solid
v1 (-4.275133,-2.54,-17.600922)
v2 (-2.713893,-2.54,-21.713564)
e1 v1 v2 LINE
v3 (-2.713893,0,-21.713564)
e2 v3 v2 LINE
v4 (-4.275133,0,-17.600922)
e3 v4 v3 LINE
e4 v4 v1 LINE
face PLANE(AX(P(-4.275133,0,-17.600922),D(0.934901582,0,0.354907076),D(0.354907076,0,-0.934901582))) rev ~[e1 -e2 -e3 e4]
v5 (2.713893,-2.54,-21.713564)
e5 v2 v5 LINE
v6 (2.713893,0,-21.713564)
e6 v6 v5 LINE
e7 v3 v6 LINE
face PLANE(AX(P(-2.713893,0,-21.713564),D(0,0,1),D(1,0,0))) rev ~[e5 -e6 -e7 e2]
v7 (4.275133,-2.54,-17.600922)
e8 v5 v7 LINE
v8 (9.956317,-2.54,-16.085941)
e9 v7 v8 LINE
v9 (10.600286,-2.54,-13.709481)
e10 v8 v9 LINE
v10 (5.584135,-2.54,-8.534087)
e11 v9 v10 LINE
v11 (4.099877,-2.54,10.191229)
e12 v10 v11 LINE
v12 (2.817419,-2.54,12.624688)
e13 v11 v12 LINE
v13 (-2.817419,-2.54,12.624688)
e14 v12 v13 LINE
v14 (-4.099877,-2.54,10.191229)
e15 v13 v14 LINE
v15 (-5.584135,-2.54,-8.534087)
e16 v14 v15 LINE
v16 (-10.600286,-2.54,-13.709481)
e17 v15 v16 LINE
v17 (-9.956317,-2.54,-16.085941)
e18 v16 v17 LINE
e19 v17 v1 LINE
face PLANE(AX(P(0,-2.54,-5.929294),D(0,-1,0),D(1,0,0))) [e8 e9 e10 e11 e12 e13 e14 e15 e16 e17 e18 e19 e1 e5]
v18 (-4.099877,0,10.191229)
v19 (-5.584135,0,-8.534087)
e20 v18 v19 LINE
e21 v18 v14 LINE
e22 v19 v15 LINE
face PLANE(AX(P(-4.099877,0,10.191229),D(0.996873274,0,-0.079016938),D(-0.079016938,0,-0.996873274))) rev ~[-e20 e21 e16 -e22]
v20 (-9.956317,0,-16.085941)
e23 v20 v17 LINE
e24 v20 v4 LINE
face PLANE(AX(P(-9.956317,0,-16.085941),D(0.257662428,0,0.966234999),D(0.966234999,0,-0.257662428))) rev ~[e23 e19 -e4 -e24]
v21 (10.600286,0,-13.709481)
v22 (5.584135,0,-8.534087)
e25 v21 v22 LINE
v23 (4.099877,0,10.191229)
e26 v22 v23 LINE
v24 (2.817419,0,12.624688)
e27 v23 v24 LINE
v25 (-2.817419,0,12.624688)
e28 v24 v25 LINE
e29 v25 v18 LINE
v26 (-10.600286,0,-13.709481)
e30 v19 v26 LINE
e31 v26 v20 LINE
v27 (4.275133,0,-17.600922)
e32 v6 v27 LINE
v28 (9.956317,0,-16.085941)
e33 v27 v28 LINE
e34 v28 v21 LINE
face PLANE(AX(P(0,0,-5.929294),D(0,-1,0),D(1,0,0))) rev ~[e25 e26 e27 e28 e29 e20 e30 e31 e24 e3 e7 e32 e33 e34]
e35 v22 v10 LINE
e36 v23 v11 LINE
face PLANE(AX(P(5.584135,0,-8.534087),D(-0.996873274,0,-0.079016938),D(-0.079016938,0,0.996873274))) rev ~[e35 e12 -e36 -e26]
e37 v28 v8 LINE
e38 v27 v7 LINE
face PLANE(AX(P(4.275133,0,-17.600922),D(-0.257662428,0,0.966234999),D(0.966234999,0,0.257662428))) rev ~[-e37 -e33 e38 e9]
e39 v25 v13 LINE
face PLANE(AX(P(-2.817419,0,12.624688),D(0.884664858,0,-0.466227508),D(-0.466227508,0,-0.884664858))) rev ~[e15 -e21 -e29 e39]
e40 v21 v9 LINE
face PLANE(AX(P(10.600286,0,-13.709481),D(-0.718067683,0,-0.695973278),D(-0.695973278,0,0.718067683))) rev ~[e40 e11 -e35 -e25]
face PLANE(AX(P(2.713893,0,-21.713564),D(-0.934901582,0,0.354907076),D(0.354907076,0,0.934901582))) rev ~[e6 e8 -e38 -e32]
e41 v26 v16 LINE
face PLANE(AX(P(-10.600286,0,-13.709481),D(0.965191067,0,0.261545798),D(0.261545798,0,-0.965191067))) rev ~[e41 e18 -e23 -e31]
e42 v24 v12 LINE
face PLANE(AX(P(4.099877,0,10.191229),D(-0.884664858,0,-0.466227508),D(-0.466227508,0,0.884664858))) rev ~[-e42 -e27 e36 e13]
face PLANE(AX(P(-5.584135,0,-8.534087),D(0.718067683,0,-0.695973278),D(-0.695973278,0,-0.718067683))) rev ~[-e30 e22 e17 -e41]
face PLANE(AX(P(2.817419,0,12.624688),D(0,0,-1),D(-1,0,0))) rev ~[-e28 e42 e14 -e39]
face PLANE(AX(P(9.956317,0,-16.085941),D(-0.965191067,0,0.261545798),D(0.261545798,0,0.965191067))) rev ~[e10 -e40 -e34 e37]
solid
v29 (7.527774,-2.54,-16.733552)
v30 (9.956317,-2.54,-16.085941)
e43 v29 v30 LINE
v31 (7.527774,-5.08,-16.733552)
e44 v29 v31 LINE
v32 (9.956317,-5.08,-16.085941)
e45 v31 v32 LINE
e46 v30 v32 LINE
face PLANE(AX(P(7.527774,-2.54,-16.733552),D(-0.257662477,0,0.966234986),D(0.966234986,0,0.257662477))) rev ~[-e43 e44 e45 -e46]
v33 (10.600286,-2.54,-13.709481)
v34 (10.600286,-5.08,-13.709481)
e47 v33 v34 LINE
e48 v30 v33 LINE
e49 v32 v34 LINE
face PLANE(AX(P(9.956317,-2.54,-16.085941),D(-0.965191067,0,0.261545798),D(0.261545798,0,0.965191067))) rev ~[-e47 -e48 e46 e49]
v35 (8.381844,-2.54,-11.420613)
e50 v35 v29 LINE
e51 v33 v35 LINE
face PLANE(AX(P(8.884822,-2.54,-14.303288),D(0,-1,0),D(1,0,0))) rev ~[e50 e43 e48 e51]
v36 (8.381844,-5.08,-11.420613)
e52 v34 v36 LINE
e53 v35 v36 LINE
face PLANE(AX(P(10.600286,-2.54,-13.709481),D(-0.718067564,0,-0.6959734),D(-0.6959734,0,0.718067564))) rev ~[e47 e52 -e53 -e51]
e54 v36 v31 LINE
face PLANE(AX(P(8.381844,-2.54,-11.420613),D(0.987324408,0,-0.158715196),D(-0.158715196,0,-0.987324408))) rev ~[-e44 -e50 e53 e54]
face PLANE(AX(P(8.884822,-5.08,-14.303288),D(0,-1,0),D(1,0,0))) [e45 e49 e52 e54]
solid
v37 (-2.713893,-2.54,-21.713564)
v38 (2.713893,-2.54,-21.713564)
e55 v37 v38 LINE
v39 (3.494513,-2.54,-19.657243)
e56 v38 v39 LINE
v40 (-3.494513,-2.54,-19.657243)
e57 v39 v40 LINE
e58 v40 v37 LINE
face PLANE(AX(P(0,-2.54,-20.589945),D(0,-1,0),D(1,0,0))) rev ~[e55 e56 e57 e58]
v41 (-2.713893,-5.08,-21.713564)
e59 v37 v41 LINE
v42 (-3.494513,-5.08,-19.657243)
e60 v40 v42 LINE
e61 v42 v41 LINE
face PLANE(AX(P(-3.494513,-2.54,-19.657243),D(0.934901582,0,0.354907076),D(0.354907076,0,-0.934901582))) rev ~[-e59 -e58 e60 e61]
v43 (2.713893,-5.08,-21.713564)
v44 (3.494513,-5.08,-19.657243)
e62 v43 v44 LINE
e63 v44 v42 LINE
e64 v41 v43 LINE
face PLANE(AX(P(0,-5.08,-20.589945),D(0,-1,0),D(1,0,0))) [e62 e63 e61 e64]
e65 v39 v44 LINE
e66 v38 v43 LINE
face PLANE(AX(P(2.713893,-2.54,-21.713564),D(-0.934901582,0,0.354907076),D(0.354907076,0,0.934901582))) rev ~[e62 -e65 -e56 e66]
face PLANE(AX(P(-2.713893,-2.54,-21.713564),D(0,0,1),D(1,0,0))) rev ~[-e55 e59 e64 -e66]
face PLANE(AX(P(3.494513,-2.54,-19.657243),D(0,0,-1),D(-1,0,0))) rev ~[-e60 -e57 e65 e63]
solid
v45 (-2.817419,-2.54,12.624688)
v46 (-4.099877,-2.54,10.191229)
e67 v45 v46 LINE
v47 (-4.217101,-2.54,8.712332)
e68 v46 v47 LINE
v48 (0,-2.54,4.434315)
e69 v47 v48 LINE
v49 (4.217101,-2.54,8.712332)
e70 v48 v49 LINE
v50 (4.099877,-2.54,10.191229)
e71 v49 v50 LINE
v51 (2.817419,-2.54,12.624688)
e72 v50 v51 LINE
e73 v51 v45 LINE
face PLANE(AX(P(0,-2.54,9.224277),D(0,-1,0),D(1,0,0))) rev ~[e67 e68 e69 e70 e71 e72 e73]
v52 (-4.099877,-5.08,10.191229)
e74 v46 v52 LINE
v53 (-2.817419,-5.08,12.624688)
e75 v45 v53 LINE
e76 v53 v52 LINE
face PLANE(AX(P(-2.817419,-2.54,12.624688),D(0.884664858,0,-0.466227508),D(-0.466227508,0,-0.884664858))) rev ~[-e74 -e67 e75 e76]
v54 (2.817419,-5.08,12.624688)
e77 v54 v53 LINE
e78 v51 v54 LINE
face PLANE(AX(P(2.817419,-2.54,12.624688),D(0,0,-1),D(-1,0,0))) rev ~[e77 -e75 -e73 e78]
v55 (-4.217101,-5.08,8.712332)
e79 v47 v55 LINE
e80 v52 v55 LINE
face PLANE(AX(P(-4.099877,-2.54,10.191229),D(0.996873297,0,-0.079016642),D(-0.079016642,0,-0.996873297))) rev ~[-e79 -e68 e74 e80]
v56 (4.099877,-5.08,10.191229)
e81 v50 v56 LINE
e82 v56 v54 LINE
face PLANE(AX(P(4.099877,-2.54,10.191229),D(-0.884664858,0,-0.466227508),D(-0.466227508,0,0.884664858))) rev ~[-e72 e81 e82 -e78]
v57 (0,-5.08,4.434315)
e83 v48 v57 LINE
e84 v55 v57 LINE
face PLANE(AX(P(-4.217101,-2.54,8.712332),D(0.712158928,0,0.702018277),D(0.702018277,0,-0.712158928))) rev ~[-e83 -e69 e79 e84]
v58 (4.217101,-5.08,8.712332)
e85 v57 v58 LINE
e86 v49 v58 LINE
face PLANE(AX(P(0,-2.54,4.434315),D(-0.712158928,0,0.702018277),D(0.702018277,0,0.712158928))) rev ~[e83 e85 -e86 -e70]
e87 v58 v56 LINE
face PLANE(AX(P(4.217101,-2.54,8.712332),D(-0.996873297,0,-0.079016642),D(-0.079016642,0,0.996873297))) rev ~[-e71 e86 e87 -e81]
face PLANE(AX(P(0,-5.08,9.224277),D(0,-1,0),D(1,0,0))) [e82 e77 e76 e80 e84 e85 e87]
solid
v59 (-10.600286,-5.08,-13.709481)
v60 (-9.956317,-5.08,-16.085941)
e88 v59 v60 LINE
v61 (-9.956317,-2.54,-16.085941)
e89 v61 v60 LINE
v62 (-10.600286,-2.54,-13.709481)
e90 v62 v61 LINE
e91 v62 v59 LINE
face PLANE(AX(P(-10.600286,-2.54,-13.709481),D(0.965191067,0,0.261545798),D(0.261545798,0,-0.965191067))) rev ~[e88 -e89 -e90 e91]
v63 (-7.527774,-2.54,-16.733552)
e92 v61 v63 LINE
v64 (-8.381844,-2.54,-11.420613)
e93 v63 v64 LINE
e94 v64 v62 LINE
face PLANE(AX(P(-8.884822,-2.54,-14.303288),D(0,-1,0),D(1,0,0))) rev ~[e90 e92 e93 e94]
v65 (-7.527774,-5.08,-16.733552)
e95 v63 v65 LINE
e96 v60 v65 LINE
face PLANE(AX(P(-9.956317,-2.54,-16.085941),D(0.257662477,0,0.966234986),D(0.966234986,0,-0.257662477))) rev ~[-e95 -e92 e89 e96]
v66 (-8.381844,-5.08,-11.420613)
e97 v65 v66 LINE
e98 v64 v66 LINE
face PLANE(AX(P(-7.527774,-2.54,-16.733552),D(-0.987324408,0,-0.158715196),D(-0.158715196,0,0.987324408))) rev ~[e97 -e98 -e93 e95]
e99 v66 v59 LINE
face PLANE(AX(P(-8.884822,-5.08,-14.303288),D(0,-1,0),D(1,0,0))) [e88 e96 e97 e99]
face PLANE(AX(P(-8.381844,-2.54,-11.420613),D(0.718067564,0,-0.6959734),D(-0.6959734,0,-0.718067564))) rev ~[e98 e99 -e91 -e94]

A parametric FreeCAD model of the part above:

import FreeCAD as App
import Part
import Sketcher

V = App.Vector
Q = App.Units.Quantity


def add_polygon(sketch, points):
    """Adds a closed chain of lines whose ends are joined by coincident constraints."""
    first, n = sketch.GeometryCount, len(points)
    for a, b in zip(points, points[1:] + points[:1]):
        sketch.addGeometry(Part.LineSegment(App.Vector(*a, 0), App.Vector(*b, 0)), False)
    for i in range(n):
        sketch.addConstraint(Sketcher.Constraint("Coincident", first + i, 2, first + (i + 1) % n, 1))

doc = App.newDocument("Part")
body = doc.addObject("PartDesign::Body", "Body")

# Sketch on XZ plane
sketch1 = body.newObject("Sketcher::SketchObject", "Sketch")
sketch1.AttachmentSupport = (doc.getObject("XZ_Plane"), [""])
sketch1.MapMode = "FlatFace"
add_polygon(sketch1, [(-4.3, -17.6), (-2.7, -21.7), (2.7, -21.7), (4.3, -17.6), (10, -16.1), (10.6, -13.7), (5.6, -8.5), (4.1, 10.2), (2.8, 12.6), (-2.8, 12.6), (-4.1, 10.2), (-5.6, -8.5), (-10.6, -13.7), (-10, -16.1)])  # lines 0-13
sketch1.addConstraint(Sketcher.Constraint("Horizontal", 1))
sketch1.addConstraint(Sketcher.Constraint("Horizontal", 8))
sketch1.addConstraint(Sketcher.Constraint("Symmetric", 6, 2, 9, 2, -2))
sketch1.addConstraint(Sketcher.Constraint("Symmetric", 5, 2, 10, 2, -2))
sketch1.addConstraint(Sketcher.Constraint("Symmetric", 4, 2, 11, 2, -2))
sketch1.addConstraint(Sketcher.Constraint("Symmetric", 3, 2, 12, 2, -2))
sketch1.addConstraint(Sketcher.Constraint("Symmetric", 2, 2, 13, 2, -2))
sketch1.addConstraint(Sketcher.Constraint("Equal", 0, 2))
sketch1.addConstraint(Sketcher.Constraint("Equal", 7, 9))
sketch1.addConstraint(Sketcher.Constraint("DistanceX", 6, 2, 2, 2, Q("0.0068998 in")))
sketch1.addConstraint(Sketcher.Constraint("DistanceX", 8, 2, 8, 1, Q("5.634838 mm")))
sketch1.addConstraint(Sketcher.Constraint("DistanceX", 2, 2, 5, 2, Q("1.309002 mm")))
sketch1.addConstraint(Sketcher.Constraint("DistanceX", 7, 2, 3, 2, Q("7.138898 mm")))
sketch1.addConstraint(Sketcher.Constraint("Distance", 0, Q("4.399011 mm")))
sketch1.addConstraint(Sketcher.Constraint("Distance", 5, Q("7.20739 mm")))
sketch1.addConstraint(Sketcher.Constraint("Distance", 6, Q("18.784049 mm")))
sketch1.addConstraint(Sketcher.Constraint("DistanceX", 1, 1, 1, 2, Q("5.427786 mm")))
sketch1.addConstraint(Sketcher.Constraint("DistanceY", 3, 2, -1, 1, Q("16.085941 mm")))
sketch1.addConstraint(Sketcher.Constraint("DistanceY", 4, 2, -1, 1, Q("13.709481 mm")))
sketch1.addConstraint(Sketcher.Constraint("DistanceY", -1, 1, 6, 2, Q("10.191229 mm")))
sketch1.addConstraint(Sketcher.Constraint("DistanceY", -1, 1, 7, 2, Q("12.624688 mm")))
sketch1.addConstraint(Sketcher.Constraint("DistanceX", 1, 2, 2, 2, Q("1.56124 mm")))
sketch1.addConstraint(Sketcher.Constraint("DistanceY", 2, 2, 3, 2, Q("1.514981 mm")))
pad1 = body.newObject("PartDesign::Pad", "Pad")
pad1.Profile = sketch1
pad1.Length = Q("0.1 in")
body2 = doc.addObject("PartDesign::Body", "Body001")

# Sketch on XZ plane
sketch2 = body2.newObject("Sketcher::SketchObject", "Sketch001")
sketch2.AttachmentSupport = (doc.getObject("XZ_Plane001"), [""])
sketch2.MapMode = "FlatFace"
sketch2.AttachmentOffset = App.Placement(V(0, 0, 0.1 * 25.4), App.Rotation())
add_polygon(sketch2, [(4.1, 10.2), (2.8, 12.6), (-2.8, 12.6), (-4.1, 10.2), (-4.2, 8.7), (0, 4.4), (4.2, 8.7)])  # lines 0-6
sketch2.addConstraint(Sketcher.Constraint("Horizontal", 1))
sketch2.addConstraint(Sketcher.Constraint("Symmetric", 3, 2, 5, 2, -2))
sketch2.addConstraint(Sketcher.Constraint("Symmetric", 2, 2, 6, 2, -2))
sketch2.addConstraint(Sketcher.Constraint("PointOnObject", 4, 2, -2))
sketch2.addConstraint(Sketcher.Constraint("Equal", 0, 2))
sketch2.addConstraint(Sketcher.Constraint("DistanceX", 1, 2, 1, 1, Q("5.634838 mm")))
sketch2.addConstraint(Sketcher.Constraint("DistanceX", 3, 2, -1, 1, Q("4.217101 mm")))
sketch2.addConstraint(Sketcher.Constraint("Distance", 4, Q("6.00711 mm")))
sketch2.addConstraint(Sketcher.Constraint("DistanceY", -1, 1, 0, 2, Q("12.624688 mm")))
sketch2.addConstraint(Sketcher.Constraint("DistanceY", -1, 1, 2, 2, Q("10.191229 mm")))
sketch2.addConstraint(Sketcher.Constraint("DistanceX", 2, 2, 1, 2, Q("1.282458 mm")))
sketch2.addConstraint(Sketcher.Constraint("Distance", 3, Q("1.483536 mm")))
pad2 = body2.newObject("PartDesign::Pad", "Pad001")
pad2.Profile = sketch2
pad2.Length = Q("0.1 in")
body3 = doc.addObject("PartDesign::Body", "Body002")
body3.AllowCompound = True

# Sketch on XZ plane
sketch3 = body3.newObject("Sketcher::SketchObject", "Sketch002")
sketch3.AttachmentSupport = (doc.getObject("XZ_Plane002"), [""])
sketch3.MapMode = "FlatFace"
sketch3.AttachmentOffset = App.Placement(V(0, 0, 0.1 * 25.4), App.Rotation())
add_polygon(sketch3, [(-7.5, -16.7), (-8.4, -11.4), (-10.6, -13.7), (-10, -16.1)])  # lines 0-3
add_polygon(sketch3, [(7.5, -16.7), (10, -16.1), (10.6, -13.7), (8.4, -11.4)])  # lines 4-7
add_polygon(sketch3, [(-3.5, -19.7), (-2.7, -21.7), (2.7, -21.7), (3.5, -19.7)])  # lines 8-11
sketch3.addConstraint(Sketcher.Constraint("Horizontal", 9))
sketch3.addConstraint(Sketcher.Constraint("Horizontal", 11))
sketch3.addConstraint(Sketcher.Constraint("Symmetric", 2, 2, 4, 2, -2))
sketch3.addConstraint(Sketcher.Constraint("Symmetric", 1, 2, 5, 2, -2))
sketch3.addConstraint(Sketcher.Constraint("Symmetric", 0, 2, 6, 2, -2))
sketch3.addConstraint(Sketcher.Constraint("Symmetric", 3, 2, 7, 2, -2))
sketch3.addConstraint(Sketcher.Constraint("Equal", 8, 10))
sketch3.addConstraint(Sketcher.Constraint("Distance", 0, Q("5.381148 mm")))
sketch3.addConstraint(Sketcher.Constraint("Distance", 1, Q("3.187538 mm")))
sketch3.addConstraint(Sketcher.Constraint("Distance", 3, Q("2.513408 mm")))
sketch3.addConstraint(Sketcher.Constraint("DistanceX", 9, 1, 9, 2, Q("5.427786 mm")))
sketch3.addConstraint(Sketcher.Constraint("DistanceX", 11, 2, 11, 1, Q("6.989026 mm")))
sketch3.addConstraint(Sketcher.Constraint("DistanceY", 1, 2, -1, 1, Q("13.709481 mm")))
sketch3.addConstraint(Sketcher.Constraint("DistanceY", 2, 2, -1, 1, Q("16.085941 mm")))
sketch3.addConstraint(Sketcher.Constraint("DistanceY", 3, 2, -1, 1, Q("16.733552 mm")))
sketch3.addConstraint(Sketcher.Constraint("DistanceY", 1, 2, 0, 2, Q("2.288868 mm")))
sketch3.addConstraint(Sketcher.Constraint("DistanceX", 3, 2, 4, 2, Q("17.484091 mm")))
sketch3.addConstraint(Sketcher.Constraint("DistanceX", 3, 2, 8, 2, Q("4.813881 mm")))
sketch3.addConstraint(Sketcher.Constraint("DistanceY", 8, 2, 0, 2, Q("10.292951 mm")))
sketch3.addConstraint(Sketcher.Constraint("DistanceY", 9, 2, 10, 2, Q("2.056321 mm")))
pad3 = body3.newObject("PartDesign::Pad", "Pad002")
pad3.Profile = sketch3
pad3.Length = Q("0.1 in")

doc.recompute()
